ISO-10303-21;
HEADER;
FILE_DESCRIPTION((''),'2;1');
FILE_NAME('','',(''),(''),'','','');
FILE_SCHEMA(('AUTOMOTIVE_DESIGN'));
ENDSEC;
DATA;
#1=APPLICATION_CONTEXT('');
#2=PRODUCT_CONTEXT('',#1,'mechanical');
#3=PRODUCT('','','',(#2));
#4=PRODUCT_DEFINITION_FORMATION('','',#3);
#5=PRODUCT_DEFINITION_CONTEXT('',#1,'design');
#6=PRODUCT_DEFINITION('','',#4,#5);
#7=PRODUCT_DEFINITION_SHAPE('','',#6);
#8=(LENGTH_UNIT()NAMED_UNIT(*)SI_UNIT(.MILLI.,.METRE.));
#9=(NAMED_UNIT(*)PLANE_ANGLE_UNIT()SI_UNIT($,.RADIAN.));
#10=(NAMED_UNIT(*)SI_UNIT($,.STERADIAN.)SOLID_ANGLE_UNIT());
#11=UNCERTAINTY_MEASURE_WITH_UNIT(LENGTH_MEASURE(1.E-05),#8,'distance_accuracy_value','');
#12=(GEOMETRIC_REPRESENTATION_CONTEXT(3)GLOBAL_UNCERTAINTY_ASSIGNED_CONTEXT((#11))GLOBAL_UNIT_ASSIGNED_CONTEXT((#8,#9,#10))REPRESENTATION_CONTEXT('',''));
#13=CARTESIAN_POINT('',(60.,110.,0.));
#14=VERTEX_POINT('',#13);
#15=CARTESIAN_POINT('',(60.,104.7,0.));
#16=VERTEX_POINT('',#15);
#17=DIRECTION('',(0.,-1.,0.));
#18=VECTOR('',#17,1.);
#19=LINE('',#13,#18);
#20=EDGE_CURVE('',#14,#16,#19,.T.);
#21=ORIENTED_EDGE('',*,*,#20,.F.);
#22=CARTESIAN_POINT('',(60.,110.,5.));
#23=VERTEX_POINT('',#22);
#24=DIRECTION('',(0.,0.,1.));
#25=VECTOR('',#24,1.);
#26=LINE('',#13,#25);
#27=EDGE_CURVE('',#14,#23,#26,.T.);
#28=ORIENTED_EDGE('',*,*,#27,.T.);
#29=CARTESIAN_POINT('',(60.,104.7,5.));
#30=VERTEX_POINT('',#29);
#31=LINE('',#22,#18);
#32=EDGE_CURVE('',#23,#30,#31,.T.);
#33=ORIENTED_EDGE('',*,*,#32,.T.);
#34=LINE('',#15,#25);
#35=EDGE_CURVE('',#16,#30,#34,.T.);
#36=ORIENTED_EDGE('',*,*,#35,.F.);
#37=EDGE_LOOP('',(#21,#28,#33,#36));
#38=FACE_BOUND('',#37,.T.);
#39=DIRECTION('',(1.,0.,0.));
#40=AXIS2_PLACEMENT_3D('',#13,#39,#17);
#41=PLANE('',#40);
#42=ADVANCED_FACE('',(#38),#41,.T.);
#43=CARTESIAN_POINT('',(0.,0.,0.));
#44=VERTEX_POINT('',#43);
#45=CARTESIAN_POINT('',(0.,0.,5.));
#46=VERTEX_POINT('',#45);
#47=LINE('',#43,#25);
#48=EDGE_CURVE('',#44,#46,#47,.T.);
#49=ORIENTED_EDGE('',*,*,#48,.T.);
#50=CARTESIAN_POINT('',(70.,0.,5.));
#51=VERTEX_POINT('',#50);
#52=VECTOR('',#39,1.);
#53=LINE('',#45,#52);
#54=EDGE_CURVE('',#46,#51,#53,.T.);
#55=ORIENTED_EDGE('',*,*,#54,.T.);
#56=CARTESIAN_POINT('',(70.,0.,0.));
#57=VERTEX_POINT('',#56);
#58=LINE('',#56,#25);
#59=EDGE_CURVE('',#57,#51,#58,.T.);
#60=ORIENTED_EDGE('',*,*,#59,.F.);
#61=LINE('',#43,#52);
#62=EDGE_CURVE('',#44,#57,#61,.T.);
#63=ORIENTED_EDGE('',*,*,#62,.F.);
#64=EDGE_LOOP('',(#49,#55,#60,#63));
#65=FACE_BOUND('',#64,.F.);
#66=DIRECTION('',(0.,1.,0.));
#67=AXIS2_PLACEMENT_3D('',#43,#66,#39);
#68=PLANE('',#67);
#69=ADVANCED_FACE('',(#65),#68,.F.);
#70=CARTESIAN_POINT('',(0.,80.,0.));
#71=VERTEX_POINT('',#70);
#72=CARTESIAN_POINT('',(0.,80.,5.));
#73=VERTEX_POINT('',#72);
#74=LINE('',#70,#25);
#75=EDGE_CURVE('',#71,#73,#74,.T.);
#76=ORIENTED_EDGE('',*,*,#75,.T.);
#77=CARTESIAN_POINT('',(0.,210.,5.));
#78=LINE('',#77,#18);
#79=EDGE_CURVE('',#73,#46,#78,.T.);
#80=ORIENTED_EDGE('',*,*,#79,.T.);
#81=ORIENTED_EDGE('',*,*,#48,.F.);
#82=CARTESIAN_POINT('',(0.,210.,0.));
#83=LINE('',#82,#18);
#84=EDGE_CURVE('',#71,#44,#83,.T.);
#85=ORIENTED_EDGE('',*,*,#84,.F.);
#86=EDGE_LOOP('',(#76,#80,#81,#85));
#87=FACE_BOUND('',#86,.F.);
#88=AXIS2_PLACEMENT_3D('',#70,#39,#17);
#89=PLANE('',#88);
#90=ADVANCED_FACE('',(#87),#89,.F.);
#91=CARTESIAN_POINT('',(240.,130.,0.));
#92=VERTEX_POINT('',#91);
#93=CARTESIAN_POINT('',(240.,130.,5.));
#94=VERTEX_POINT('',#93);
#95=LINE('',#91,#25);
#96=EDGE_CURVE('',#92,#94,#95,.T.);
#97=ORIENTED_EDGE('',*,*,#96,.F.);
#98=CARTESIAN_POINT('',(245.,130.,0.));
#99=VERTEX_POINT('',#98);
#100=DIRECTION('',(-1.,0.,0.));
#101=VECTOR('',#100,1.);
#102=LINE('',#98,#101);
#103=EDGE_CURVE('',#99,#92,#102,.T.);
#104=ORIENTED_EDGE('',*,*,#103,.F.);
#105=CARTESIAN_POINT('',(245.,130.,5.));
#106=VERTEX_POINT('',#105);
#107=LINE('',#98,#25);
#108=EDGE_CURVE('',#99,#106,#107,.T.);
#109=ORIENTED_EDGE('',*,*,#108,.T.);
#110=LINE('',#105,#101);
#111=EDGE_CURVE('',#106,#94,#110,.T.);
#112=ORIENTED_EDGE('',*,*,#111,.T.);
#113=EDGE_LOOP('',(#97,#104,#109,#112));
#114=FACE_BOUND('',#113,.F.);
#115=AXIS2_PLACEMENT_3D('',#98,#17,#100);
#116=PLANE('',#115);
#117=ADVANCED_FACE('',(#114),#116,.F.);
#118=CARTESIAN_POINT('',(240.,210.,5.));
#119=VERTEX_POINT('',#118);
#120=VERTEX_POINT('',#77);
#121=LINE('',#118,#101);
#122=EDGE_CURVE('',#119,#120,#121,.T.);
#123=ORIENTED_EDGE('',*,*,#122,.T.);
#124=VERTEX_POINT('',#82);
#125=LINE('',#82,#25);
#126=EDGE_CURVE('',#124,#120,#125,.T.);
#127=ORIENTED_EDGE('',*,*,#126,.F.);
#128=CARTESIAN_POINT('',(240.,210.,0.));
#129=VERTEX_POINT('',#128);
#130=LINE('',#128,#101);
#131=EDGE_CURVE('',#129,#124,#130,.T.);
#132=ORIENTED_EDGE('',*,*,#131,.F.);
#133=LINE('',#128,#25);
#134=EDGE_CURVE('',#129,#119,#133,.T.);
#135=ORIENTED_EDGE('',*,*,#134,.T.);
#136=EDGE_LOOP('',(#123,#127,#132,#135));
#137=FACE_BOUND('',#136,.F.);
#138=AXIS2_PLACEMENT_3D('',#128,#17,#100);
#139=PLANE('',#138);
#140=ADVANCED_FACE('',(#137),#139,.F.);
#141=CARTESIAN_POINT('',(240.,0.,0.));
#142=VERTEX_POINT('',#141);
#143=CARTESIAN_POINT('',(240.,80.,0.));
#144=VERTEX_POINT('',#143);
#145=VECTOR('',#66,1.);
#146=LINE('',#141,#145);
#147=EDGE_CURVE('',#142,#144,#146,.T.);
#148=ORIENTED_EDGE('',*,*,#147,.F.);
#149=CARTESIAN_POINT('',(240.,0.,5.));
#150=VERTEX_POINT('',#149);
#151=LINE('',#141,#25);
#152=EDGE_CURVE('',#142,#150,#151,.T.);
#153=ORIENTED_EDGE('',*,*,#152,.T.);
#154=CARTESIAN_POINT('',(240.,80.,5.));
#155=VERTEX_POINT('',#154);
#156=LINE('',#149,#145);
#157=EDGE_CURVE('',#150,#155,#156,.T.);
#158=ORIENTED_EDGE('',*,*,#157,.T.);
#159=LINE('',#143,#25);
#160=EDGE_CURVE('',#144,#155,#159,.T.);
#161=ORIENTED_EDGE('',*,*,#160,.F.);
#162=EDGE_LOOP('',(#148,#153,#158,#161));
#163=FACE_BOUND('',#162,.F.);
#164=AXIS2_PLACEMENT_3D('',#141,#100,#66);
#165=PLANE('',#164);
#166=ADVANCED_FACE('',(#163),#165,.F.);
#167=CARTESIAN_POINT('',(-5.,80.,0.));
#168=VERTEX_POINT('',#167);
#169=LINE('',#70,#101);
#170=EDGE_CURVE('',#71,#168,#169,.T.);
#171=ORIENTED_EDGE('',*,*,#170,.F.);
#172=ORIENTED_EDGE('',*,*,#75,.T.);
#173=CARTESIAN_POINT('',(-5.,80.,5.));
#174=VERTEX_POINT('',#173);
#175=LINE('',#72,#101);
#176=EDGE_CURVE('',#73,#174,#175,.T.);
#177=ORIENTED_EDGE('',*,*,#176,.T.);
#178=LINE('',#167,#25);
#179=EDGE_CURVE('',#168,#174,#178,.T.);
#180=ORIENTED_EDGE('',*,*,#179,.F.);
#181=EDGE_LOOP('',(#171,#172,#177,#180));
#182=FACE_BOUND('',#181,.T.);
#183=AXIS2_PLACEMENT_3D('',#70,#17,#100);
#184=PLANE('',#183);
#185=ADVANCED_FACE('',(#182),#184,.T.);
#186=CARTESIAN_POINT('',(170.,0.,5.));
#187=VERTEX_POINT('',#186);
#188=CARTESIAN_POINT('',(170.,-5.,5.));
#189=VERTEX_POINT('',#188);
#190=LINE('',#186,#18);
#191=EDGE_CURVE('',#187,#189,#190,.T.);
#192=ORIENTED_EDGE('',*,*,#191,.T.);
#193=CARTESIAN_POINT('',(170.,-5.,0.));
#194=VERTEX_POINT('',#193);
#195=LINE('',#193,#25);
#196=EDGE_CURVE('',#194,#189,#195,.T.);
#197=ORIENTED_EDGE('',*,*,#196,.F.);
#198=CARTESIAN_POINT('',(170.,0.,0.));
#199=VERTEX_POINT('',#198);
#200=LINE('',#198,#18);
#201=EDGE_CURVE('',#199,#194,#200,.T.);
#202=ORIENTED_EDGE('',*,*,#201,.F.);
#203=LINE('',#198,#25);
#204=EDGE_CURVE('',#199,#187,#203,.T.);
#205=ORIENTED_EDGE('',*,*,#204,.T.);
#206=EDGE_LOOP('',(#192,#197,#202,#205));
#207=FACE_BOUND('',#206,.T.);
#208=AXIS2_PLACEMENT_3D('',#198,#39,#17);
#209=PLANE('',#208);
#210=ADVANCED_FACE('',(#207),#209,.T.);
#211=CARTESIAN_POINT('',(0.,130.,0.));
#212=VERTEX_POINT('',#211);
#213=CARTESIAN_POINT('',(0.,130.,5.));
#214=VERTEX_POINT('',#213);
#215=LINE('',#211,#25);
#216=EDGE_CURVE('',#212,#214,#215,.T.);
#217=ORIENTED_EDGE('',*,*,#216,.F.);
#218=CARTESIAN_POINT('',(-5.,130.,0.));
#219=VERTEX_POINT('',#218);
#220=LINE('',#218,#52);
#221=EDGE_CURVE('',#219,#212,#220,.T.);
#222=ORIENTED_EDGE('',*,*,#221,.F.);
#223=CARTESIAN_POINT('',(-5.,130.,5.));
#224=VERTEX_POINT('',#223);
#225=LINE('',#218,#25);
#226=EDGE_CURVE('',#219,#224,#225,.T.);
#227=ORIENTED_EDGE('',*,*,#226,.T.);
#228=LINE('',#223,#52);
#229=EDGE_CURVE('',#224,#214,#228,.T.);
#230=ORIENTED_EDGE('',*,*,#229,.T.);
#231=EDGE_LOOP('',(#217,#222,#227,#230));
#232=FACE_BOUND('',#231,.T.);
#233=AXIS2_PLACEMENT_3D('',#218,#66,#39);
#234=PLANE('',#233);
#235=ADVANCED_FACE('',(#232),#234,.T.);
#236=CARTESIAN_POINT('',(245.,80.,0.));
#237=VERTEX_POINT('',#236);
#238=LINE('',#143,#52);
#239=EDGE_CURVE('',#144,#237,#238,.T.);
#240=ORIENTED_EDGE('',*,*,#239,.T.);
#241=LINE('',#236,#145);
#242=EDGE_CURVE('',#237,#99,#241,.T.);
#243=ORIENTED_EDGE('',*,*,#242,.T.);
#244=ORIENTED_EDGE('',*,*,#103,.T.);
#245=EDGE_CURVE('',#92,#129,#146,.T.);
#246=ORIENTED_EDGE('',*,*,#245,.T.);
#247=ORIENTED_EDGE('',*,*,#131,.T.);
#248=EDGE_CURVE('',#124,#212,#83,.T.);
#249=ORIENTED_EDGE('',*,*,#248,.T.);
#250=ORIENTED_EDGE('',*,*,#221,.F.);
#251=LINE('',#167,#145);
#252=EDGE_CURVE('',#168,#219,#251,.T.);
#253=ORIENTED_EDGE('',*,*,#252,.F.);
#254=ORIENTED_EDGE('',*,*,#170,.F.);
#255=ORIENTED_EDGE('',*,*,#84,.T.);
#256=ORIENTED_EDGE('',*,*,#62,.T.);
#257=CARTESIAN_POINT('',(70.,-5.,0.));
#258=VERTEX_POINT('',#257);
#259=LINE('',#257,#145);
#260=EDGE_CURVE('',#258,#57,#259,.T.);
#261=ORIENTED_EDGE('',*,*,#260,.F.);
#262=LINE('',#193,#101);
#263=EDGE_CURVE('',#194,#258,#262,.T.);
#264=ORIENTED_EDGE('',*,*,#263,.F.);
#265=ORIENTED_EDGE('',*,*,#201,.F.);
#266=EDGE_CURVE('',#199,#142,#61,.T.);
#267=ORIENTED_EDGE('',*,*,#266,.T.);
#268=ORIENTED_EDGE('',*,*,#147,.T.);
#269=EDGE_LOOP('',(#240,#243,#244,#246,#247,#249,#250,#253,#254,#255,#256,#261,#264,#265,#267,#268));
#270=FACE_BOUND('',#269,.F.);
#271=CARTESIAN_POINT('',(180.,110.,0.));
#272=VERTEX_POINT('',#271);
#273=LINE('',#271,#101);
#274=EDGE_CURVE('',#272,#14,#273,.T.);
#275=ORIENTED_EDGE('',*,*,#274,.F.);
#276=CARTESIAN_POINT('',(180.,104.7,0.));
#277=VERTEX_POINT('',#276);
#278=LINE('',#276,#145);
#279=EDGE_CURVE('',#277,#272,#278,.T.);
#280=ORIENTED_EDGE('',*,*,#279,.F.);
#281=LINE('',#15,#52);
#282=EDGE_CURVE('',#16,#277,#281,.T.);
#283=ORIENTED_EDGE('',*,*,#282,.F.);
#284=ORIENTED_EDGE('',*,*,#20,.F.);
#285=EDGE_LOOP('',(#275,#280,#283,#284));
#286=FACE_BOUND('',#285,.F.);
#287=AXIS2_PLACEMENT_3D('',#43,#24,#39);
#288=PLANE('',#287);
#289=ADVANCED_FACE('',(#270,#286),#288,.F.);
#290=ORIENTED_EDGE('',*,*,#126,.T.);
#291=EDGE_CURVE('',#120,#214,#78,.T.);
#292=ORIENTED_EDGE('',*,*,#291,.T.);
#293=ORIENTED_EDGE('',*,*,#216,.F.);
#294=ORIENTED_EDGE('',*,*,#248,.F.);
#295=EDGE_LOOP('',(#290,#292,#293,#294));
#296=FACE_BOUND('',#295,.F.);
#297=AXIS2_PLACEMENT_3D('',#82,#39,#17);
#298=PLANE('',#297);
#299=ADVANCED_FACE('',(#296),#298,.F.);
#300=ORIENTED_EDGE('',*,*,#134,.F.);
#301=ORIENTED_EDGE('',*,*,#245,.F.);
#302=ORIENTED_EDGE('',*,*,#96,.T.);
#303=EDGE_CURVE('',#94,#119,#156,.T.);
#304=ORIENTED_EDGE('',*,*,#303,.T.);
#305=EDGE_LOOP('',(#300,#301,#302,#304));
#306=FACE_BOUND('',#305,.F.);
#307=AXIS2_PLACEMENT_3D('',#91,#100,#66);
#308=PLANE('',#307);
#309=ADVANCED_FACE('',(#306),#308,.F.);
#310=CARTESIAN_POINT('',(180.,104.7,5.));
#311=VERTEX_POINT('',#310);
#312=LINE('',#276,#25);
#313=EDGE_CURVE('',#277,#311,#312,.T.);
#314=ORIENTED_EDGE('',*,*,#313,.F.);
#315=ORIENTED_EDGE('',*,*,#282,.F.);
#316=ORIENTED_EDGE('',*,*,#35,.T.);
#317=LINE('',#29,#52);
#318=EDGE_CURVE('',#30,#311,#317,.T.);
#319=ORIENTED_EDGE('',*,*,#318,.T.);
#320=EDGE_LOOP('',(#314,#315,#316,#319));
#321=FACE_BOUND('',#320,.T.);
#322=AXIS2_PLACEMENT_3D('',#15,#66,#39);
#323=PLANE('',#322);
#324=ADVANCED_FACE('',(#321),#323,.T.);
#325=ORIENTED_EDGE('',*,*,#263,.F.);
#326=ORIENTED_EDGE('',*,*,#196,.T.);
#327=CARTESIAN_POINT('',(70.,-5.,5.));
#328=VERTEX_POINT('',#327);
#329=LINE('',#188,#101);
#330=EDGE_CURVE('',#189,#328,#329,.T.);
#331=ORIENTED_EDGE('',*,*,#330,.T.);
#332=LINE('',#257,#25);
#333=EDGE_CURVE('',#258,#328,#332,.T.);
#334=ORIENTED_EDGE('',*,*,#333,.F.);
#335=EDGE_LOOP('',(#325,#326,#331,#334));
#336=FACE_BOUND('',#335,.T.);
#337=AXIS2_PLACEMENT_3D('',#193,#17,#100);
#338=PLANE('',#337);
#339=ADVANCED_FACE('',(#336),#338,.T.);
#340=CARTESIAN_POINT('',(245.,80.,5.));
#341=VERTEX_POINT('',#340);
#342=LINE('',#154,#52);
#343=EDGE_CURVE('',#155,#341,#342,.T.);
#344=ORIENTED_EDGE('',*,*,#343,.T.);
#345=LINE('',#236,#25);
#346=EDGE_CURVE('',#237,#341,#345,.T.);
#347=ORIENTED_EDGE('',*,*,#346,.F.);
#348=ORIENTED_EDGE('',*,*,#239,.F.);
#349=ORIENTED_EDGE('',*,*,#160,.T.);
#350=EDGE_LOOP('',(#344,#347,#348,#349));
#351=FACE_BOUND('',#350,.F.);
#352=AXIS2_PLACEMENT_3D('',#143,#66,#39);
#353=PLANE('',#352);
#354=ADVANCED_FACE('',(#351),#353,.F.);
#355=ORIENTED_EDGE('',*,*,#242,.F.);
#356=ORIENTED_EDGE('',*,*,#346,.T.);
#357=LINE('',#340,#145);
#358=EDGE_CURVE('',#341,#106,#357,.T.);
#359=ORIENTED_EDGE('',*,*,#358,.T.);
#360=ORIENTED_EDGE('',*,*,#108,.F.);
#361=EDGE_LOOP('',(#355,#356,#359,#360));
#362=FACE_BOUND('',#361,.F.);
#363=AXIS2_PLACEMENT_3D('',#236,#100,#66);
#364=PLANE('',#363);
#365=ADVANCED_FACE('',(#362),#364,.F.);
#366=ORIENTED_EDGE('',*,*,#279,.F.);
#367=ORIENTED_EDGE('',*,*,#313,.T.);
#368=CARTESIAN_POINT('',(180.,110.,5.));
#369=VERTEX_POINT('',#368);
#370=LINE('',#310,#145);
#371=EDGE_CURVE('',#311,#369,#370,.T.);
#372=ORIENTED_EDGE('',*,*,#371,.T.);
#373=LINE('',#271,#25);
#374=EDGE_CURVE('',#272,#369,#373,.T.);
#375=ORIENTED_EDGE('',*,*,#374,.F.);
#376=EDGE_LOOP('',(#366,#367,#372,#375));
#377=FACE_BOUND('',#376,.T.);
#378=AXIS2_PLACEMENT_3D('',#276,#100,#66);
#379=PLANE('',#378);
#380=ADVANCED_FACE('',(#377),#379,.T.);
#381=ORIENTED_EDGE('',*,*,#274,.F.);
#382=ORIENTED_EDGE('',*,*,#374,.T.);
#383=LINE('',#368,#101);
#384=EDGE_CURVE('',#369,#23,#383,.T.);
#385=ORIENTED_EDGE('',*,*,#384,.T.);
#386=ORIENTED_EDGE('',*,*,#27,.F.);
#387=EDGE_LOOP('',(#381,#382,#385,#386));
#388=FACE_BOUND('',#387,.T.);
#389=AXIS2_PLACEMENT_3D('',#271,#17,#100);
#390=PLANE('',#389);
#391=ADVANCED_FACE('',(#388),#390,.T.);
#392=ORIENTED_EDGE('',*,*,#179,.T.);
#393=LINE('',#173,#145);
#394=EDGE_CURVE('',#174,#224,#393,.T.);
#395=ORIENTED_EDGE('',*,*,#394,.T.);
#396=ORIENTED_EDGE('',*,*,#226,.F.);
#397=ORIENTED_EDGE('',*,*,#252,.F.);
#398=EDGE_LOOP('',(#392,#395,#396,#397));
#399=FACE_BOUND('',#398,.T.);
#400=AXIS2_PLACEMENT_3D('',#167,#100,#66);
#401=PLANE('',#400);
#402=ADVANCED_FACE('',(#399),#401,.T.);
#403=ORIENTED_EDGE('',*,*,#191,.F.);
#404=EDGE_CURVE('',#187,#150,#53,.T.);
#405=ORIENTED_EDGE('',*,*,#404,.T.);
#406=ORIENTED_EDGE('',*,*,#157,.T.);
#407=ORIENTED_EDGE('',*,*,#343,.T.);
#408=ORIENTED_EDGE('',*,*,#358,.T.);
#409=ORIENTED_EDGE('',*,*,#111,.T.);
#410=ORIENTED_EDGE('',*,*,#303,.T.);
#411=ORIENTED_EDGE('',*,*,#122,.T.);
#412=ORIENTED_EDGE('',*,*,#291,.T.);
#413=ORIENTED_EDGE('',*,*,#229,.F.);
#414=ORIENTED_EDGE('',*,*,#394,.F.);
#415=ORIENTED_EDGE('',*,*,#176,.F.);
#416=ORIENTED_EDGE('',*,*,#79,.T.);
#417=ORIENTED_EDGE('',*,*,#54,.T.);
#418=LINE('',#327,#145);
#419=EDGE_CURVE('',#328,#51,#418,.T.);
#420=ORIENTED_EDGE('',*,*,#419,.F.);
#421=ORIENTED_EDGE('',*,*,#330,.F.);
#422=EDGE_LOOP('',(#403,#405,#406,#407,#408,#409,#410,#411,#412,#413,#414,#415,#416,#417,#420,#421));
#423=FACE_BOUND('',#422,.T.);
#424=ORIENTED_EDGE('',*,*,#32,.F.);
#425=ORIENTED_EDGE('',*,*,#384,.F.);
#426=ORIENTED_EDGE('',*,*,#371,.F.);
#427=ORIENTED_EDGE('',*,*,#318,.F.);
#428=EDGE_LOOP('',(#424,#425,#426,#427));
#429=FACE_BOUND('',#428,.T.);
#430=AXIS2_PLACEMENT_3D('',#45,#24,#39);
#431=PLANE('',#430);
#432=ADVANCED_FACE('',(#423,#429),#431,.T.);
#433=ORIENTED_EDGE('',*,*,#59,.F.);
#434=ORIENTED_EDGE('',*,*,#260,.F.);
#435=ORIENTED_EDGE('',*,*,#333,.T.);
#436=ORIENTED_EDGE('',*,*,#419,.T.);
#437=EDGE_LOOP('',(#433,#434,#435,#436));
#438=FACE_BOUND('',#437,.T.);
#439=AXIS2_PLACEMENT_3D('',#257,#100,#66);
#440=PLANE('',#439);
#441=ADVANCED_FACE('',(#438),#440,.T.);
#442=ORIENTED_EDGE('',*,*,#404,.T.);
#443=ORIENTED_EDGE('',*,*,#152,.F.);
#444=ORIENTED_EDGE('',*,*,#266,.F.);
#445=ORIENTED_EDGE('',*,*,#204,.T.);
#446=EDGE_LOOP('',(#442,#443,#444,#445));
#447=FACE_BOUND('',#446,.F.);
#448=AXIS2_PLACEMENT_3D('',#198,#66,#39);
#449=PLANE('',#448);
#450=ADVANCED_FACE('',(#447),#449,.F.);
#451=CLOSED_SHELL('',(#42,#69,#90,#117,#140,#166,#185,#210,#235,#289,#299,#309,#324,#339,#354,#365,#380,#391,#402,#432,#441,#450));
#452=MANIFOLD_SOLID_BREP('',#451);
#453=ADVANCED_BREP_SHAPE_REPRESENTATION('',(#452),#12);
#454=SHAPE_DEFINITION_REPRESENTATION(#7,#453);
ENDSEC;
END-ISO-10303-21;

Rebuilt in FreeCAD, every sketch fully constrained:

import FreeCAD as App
import Part
import Sketcher

V = App.Vector


def add_polygon(sketch, points):
    """Adds a closed chain of lines whose ends are joined by coincident constraints."""
    first, n = sketch.GeometryCount, len(points)
    for a, b in zip(points, points[1:] + points[:1]):
        sketch.addGeometry(Part.LineSegment(App.Vector(*a, 0), App.Vector(*b, 0)), False)
    for i in range(n):
        sketch.addConstraint(Sketcher.Constraint("Coincident", first + i, 2, first + (i + 1) % n, 1))

doc = App.newDocument("Part")
params = doc.addObject("Spreadsheet::Sheet", "Params")
for row, (alias, value) in enumerate([
    ("sketch1_width", "100 mm"),
    ("sketch1_width2", "5 mm"),
    ("sketch1_width3", "240 mm"),
    ("sketch1_width4", "120 mm"),
    ("sketch1_height", "50 mm"),
    ("pad1_length", "5 mm"),
], start=1):
    params.set(f"A{row}", alias)
    params.set(f"B{row}", "=" + value)
    params.setAlias(f"B{row}", alias)

body = doc.addObject("PartDesign::Body", "Body")

sketch1 = doc.addObject("Sketcher::SketchObject", "Sketch")
body.addObject(sketch1)
sketch1.AttachmentSupport = (doc.XY_Plane, [""])
sketch1.MapMode = "FlatFace"
add_polygon(sketch1, [(0, 80), (0, 0), (70, 0), (70, -5), (170, -5), (170, 0), (240, 0), (240, 80), (245, 80), (245, 130), (240, 130), (240, 210), (0, 210), (0, 130), (-5, 130), (-5, 80)])
add_polygon(sketch1, [(180, 104.7), (60, 104.7), (60, 110), (180, 110)])
sketch1.addConstraint([
    Sketcher.Constraint("Vertical", 0),
    Sketcher.Constraint("Horizontal", 1),
    Sketcher.Constraint("Vertical", 2),
    Sketcher.Constraint("Horizontal", 3),
    Sketcher.Constraint("Vertical", 4),
    Sketcher.Constraint("Horizontal", 5),
    Sketcher.Constraint("Vertical", 6),
    Sketcher.Constraint("Horizontal", 7),
    Sketcher.Constraint("Vertical", 8),
    Sketcher.Constraint("Horizontal", 9),
    Sketcher.Constraint("Vertical", 10),
    Sketcher.Constraint("Horizontal", 11),
    Sketcher.Constraint("Vertical", 12),
    Sketcher.Constraint("Horizontal", 13),
    Sketcher.Constraint("Vertical", 14),
    Sketcher.Constraint("Horizontal", 15),
    Sketcher.Constraint("Horizontal", 16),
    Sketcher.Constraint("Vertical", 17),
    Sketcher.Constraint("Horizontal", 18),
    Sketcher.Constraint("Vertical", 19),
    Sketcher.Constraint("Coincident", 0, 2, -1, 1),
    Sketcher.Constraint("PointOnObject", 4, 2, -1),
    Sketcher.Constraint("PointOnObject", 11, 2, -2),
    Sketcher.Constraint("Horizontal", 9, 2, 12, 2),
    Sketcher.Constraint("Horizontal", 7, 2, 14, 2),
    Sketcher.Constraint("Vertical", 6, 2, 9, 2),
    Sketcher.Constraint("Equal", 1, 5),
    Sketcher.Constraint("Equal", 9, 13),
    Sketcher.Constraint("Equal", 15, 2),
    Sketcher.Constraint("Equal", 6, 10),
    Sketcher.Constraint("DistanceX", 3, 1, 3, 2, 100.0),
    Sketcher.Constraint("DistanceX", 7, 1, 7, 2, 5.0),
    Sketcher.Constraint("DistanceX", 11, 2, 11, 1, 240.0),
    Sketcher.Constraint("DistanceX", 16, 2, 16, 1, 120.0),
    Sketcher.Constraint("DistanceY", 8, 1, 8, 2, 50.0),
    Sketcher.Constraint("DistanceY", 17, 1, 17, 2, 5.3),
    Sketcher.Constraint("DistanceY", -1, 1, 10, 2, 210.0),
    Sketcher.Constraint("DistanceX", -1, 1, 16, 2, 60.0),
    Sketcher.Constraint("DistanceY", -1, 1, 17, 2, 110.0),
])
sketch1.setExpression("Constraints[50]", "Params.sketch1_width")
sketch1.setExpression("Constraints[51]", "Params.sketch1_width2")
sketch1.setExpression("Constraints[52]", "Params.sketch1_width3")
sketch1.setExpression("Constraints[53]", "Params.sketch1_width4")
sketch1.setExpression("Constraints[54]", "Params.sketch1_height")
pad1 = doc.addObject("PartDesign::Pad", "Pad")
body.addObject(pad1)
pad1.Profile = sketch1
pad1.setExpression("Length", "Params.pad1_length")

doc.recompute()
